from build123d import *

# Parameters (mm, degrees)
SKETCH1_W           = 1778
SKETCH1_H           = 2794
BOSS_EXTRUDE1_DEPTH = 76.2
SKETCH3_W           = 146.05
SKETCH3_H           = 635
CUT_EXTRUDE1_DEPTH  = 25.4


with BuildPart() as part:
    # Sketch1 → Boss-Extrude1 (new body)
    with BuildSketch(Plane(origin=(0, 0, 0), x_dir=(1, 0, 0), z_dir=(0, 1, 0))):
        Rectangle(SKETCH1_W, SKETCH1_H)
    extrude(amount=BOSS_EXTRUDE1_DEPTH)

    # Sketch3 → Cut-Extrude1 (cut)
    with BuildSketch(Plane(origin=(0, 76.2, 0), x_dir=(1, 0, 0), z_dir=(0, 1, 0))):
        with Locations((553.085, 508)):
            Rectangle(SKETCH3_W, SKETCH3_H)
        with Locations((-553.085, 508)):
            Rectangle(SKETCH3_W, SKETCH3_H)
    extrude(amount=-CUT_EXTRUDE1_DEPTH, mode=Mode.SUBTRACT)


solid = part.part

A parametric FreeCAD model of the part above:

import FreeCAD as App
import Part
import Sketcher
Q = App.Units.Quantity

doc = App.newDocument("Part")
params = doc.addObject("Spreadsheet::Sheet", "Params")
for row, (alias, value) in enumerate([
    ("sketch1_width", "70 in"),
    ("sketch1_height", "110 in"),
    ("pad1_length", "3 in"),
    ("sketch2_height", "25 in"),
    ("sketch2_width", "5.75 in"),
    ("pocket1_length", "1 in"),
], start=1):
    params.set(f"A{row}", alias)
    params.set(f"B{row}", "=" + value)
    params.setAlias(f"B{row}", alias)

body = doc.addObject("PartDesign::Body", "Body")

# Sketch on XZ plane
sketch1 = body.newObject("Sketcher::SketchObject", "Sketch")
sketch1.AttachmentSupport = (doc.getObject("XZ_Plane"), [""])
sketch1.MapMode = "FlatFace"
sketch1.addGeometry([
    Part.LineSegment(App.Vector(-889, -1397, 0), App.Vector(-889, 1397, 0)),
    Part.LineSegment(App.Vector(-889, 1397, 0), App.Vector(889, 1397, 0)),
    Part.LineSegment(App.Vector(889, 1397, 0), App.Vector(889, -1397, 0)),
    Part.LineSegment(App.Vector(889, -1397, 0), App.Vector(-889, -1397, 0)),
], False)
sketch1.addConstraint([
    Sketcher.Constraint("Coincident", 0, 2, 1, 1),
    Sketcher.Constraint("Coincident", 1, 2, 2, 1),
    Sketcher.Constraint("Coincident", 2, 2, 3, 1),
    Sketcher.Constraint("Coincident", 3, 2, 0, 1),
    Sketcher.Constraint("Vertical", 0),
    Sketcher.Constraint("Horizontal", 1),
    Sketcher.Constraint("Vertical", 2),
    Sketcher.Constraint("Horizontal", 3),
    Sketcher.Constraint("Symmetric", 0, 2, 2, 2, -1, 1),
    Sketcher.Constraint("DistanceX", 1, 1, 1, 2, Q("70 in")),
    Sketcher.Constraint("DistanceY", 0, 1, 0, 2, Q("110 in")),
])
sketch1.setExpression("Constraints[9]", "Params.sketch1_width")
sketch1.setExpression("Constraints[10]", "Params.sketch1_height")
pad1 = body.newObject("PartDesign::Pad", "Pad")
pad1.Profile = sketch1
pad1.setExpression("Length", "Params.pad1_length")
pad1.Reversed = True

# Sketch on XZ plane
sketch2 = body.newObject("Sketcher::SketchObject", "Sketch001")
sketch2.AttachmentSupport = (doc.getObject("XZ_Plane"), [""])
sketch2.MapMode = "FlatFace"
sketch2.AttachmentOffset = App.Placement(App.Vector(0, 0, -3 * 25.4), App.Rotation())
sketch2.addGeometry([
    Part.LineSegment(App.Vector(480.06, -825.5, 0), App.Vector(480.06, -190.5, 0)),  # 0
    Part.LineSegment(App.Vector(480.06, -190.5, 0), App.Vector(626.11, -190.5, 0)),  # 1
    Part.LineSegment(App.Vector(626.11, -190.5, 0), App.Vector(626.11, -825.5, 0)),  # 2
    Part.LineSegment(App.Vector(626.11, -825.5, 0), App.Vector(480.06, -825.5, 0)),  # 3
    Part.LineSegment(App.Vector(-626.11, -825.5, 0), App.Vector(-626.11, -190.5, 0)),  # 4
    Part.LineSegment(App.Vector(-626.11, -190.5, 0), App.Vector(-480.06, -190.5, 0)),  # 5
    Part.LineSegment(App.Vector(-480.06, -190.5, 0), App.Vector(-480.06, -825.5, 0)),  # 6
    Part.LineSegment(App.Vector(-480.06, -825.5, 0), App.Vector(-626.11, -825.5, 0)),  # 7
], False)
sketch2.addConstraint([
    Sketcher.Constraint("Coincident", 0, 2, 1, 1),
    Sketcher.Constraint("Coincident", 1, 2, 2, 1),
    Sketcher.Constraint("Coincident", 2, 2, 3, 1),
    Sketcher.Constraint("Coincident", 3, 2, 0, 1),
    Sketcher.Constraint("Coincident", 4, 2, 5, 1),
    Sketcher.Constraint("Coincident", 5, 2, 6, 1),
    Sketcher.Constraint("Coincident", 6, 2, 7, 1),
    Sketcher.Constraint("Coincident", 7, 2, 4, 1),
    Sketcher.Constraint("Vertical", 0),
    Sketcher.Constraint("Horizontal", 1),
    Sketcher.Constraint("Vertical", 2),
    Sketcher.Constraint("Horizontal", 3),
    Sketcher.Constraint("Vertical", 4),
    Sketcher.Constraint("Horizontal", 5),
    Sketcher.Constraint("Vertical", 6),
    Sketcher.Constraint("Horizontal", 7),
    Sketcher.Constraint("Symmetric", 1, 2, 4, 2, -2),
    Sketcher.Constraint("Symmetric", 3, 2, 6, 2, -2),
    Sketcher.Constraint("DistanceY", 0, 1, 0, 2, Q("25 in")),
    Sketcher.Constraint("DistanceX", 1, 1, 1, 2, Q("5.75 in")),
    Sketcher.Constraint("DistanceX", -1, 1, 0, 2, Q("18.9 in")),
    Sketcher.Constraint("DistanceY", 0, 2, -1, 1, Q("7.5 in")),
])
sketch2.setExpression("Constraints[18]", "Params.sketch2_height")
sketch2.setExpression("Constraints[19]", "Params.sketch2_width")
pocket1 = body.newObject("PartDesign::Pocket", "Pocket")
pocket1.Profile = sketch2
pocket1.setExpression("Length", "Params.pocket1_length")
pocket1.Reversed = True

doc.recompute()
